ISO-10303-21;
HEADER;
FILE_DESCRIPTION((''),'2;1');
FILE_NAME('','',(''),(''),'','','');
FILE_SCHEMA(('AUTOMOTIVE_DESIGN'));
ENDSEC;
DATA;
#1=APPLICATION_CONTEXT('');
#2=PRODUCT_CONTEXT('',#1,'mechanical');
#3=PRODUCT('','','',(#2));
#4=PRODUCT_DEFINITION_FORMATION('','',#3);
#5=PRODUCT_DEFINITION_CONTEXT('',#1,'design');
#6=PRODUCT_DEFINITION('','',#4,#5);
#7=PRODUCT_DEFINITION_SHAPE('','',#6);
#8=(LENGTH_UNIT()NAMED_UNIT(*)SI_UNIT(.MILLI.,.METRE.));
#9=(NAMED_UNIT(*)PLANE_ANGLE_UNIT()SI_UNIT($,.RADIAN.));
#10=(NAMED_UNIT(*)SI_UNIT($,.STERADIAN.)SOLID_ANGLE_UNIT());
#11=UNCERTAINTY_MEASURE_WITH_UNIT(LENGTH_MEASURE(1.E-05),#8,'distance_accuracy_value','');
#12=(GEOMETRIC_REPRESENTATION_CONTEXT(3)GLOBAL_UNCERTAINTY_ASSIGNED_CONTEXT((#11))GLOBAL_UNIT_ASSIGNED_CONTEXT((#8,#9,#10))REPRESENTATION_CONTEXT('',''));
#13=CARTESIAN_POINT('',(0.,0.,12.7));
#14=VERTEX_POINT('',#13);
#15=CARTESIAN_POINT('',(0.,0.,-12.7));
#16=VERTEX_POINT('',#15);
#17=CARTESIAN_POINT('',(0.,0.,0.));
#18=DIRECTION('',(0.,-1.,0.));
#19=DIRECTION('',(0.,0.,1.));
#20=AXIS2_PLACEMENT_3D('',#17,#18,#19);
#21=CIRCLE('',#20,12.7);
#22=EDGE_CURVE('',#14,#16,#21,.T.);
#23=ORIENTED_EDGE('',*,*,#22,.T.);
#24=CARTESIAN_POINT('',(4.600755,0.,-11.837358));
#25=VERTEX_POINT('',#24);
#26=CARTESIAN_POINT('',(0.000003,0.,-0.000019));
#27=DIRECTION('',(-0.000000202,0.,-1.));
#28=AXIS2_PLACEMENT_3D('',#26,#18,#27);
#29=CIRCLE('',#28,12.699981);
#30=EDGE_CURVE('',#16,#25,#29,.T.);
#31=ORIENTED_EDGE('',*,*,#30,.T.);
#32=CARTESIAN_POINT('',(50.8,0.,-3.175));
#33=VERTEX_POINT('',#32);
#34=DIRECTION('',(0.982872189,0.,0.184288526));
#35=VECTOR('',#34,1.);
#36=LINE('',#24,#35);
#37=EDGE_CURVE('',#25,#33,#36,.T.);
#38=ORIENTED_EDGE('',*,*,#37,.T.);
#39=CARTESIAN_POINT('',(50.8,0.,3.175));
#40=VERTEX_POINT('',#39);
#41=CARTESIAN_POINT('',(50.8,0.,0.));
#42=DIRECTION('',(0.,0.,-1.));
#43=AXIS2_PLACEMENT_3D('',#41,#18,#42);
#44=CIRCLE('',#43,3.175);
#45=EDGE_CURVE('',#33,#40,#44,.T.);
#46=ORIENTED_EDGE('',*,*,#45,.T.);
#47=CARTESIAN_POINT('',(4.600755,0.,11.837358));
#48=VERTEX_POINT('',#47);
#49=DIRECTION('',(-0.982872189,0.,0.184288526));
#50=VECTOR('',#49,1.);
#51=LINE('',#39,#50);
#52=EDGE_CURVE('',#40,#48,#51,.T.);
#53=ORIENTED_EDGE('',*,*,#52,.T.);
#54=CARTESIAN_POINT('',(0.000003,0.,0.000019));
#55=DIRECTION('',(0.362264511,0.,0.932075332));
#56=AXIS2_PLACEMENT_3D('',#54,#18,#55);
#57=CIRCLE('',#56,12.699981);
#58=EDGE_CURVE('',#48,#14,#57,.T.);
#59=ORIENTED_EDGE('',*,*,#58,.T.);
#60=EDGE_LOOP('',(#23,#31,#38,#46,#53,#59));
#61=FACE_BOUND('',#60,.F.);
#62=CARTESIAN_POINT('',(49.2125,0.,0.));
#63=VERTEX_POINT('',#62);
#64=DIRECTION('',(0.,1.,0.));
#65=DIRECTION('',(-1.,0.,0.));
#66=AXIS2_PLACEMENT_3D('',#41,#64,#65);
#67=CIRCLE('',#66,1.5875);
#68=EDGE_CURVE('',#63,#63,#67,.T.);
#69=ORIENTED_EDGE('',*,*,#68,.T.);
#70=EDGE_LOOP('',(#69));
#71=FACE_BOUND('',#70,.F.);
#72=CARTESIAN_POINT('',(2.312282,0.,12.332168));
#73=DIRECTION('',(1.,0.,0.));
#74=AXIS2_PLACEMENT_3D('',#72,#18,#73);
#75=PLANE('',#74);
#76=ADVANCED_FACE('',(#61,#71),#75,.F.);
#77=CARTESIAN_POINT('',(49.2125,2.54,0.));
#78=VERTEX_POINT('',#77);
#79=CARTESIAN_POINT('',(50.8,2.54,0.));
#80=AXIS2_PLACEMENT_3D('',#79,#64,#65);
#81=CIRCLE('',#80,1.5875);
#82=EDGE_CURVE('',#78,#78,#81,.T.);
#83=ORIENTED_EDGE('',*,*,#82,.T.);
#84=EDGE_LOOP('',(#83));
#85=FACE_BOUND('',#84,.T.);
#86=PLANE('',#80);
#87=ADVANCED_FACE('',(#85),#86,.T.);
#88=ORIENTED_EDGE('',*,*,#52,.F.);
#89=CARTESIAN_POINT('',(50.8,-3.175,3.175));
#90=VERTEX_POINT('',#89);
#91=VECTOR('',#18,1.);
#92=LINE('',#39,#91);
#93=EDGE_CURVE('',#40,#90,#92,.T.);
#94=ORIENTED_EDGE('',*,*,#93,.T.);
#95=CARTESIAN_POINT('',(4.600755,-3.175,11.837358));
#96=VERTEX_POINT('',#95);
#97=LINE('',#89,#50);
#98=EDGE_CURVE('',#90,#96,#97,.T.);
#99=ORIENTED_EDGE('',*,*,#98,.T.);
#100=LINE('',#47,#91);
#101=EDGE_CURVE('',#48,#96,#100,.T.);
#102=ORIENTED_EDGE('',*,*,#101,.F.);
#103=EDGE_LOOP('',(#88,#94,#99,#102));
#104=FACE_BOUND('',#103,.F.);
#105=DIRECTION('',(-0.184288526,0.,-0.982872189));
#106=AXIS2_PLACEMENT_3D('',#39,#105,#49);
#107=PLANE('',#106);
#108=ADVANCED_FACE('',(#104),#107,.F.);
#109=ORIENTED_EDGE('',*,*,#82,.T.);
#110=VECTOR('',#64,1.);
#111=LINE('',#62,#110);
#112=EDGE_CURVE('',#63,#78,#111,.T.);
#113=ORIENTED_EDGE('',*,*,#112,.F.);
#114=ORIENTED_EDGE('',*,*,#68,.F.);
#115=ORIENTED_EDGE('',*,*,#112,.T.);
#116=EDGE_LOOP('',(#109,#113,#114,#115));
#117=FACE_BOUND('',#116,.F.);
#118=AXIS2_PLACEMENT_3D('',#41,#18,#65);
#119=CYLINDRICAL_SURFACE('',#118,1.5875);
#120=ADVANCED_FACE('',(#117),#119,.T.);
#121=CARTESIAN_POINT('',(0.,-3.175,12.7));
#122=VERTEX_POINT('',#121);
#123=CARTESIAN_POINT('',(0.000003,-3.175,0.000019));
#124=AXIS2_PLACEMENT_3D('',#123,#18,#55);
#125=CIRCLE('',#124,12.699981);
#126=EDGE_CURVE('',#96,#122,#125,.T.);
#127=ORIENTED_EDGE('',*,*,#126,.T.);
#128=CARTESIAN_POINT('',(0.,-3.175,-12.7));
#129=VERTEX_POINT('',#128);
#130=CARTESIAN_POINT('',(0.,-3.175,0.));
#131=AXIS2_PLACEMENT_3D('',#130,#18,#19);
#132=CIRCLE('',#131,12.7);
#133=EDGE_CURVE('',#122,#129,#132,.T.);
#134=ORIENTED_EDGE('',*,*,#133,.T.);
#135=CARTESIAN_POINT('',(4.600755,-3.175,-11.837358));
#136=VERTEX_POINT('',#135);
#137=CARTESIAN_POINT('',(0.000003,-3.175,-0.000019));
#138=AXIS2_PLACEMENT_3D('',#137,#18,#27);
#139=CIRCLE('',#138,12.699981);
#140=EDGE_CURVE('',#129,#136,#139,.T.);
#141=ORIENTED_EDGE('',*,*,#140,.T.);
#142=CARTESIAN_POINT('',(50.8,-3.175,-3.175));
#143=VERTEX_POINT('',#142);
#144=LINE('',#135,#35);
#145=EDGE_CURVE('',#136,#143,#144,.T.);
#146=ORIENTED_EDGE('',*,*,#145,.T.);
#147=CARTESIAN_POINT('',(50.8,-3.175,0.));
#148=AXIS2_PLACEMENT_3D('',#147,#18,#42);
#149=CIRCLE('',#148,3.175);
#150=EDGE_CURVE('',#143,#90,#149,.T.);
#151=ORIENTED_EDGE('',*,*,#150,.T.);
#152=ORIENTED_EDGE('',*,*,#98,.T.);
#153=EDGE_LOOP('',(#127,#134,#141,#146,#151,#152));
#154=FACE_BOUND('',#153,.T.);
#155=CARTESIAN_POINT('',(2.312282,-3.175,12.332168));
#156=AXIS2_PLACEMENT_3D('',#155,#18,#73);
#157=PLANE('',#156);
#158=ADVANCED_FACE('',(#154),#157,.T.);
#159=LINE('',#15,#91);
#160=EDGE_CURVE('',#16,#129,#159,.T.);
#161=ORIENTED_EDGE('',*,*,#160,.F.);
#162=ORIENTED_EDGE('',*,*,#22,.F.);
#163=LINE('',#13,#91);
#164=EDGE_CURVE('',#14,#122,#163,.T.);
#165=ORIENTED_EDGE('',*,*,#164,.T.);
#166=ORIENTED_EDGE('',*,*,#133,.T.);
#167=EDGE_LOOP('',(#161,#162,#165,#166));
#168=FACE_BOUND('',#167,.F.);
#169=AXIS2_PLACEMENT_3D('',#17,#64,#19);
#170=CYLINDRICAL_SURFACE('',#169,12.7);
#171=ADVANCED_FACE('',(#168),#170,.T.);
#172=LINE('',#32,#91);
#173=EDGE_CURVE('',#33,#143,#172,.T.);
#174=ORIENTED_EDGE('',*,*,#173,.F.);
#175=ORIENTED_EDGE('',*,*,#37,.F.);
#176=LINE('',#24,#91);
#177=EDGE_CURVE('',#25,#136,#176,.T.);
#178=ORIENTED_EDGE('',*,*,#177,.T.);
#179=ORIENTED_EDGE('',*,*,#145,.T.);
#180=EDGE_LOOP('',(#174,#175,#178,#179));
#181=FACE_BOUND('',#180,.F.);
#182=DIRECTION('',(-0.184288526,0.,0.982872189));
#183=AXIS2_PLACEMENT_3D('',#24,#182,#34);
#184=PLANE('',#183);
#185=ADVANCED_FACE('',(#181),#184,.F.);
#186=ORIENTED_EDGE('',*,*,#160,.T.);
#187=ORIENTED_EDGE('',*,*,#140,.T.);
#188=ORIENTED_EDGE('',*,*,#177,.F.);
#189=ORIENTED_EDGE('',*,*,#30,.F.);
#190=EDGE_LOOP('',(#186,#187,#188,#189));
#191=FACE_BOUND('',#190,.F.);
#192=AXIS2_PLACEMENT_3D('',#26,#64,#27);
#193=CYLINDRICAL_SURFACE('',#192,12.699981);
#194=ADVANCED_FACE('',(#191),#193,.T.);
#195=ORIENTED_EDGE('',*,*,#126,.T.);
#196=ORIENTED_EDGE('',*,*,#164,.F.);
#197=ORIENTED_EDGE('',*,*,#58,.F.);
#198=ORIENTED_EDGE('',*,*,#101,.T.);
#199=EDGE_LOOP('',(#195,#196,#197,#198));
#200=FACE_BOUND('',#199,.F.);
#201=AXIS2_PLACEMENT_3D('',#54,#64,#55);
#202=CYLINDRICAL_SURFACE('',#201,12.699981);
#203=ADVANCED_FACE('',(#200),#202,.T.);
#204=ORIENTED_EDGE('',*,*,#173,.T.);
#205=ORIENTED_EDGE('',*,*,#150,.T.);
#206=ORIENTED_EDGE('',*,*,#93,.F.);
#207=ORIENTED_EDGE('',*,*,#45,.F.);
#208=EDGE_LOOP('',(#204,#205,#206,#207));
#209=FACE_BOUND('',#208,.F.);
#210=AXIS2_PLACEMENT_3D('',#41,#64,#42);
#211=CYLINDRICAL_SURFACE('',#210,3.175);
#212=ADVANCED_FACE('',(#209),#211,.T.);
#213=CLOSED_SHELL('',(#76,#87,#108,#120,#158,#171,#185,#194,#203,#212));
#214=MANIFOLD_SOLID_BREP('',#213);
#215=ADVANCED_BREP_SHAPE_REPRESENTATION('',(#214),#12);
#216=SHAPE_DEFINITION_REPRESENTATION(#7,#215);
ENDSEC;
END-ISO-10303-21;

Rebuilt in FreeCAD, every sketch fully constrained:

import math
import FreeCAD as App
import Part
import Sketcher

V = App.Vector
Q = App.Units.Quantity

doc = App.newDocument("Part")
body = doc.addObject("PartDesign::Body", "Body")

# Sketch on XZ plane
sketch1 = body.newObject("Sketcher::SketchObject", "Sketch")
sketch1.AttachmentSupport = (doc.getObject("XZ_Plane"), [""])
sketch1.MapMode = "FlatFace"
sketch1.addGeometry([
    Part.ArcOfCircle(Part.Circle(V(0, 0, 0), V(0, 0, 1), 12.7), math.radians(69), math.radians(90)),  # 0
    Part.ArcOfCircle(Part.Circle(V(0, 0, 0), V(0, 0, 1), 12.7), math.radians(90), math.radians(270)),  # 1
    Part.ArcOfCircle(Part.Circle(V(0, 0, 0), V(0, 0, 1), 12.7), math.radians(-90), math.radians(-69)),  # 2
    Part.LineSegment(V(4.6, -11.8, 0), V(50.8, -3.2, 0)),  # 3
    Part.ArcOfCircle(Part.Circle(V(50.8, 0, 0), V(0, 0, 1), 3.2), math.radians(-90), math.radians(90)),  # 4
    Part.LineSegment(V(50.8, 3.2, 0), V(4.6, 11.8, 0)),  # 5
], False)
sketch1.addConstraint([
    Sketcher.Constraint("Tangent", 0, 2, 1, 1),
    Sketcher.Constraint("Tangent", 1, 2, 2, 1),
    Sketcher.Constraint("Coincident", 2, 2, 3, 1),
    Sketcher.Constraint("Coincident", 3, 2, 4, 1),
    Sketcher.Constraint("Coincident", 4, 2, 5, 1),
    Sketcher.Constraint("Coincident", 5, 2, 0, 1),
    Sketcher.Constraint("Coincident", 1, 3, -1, 1),
    Sketcher.Constraint("Equal", 0, 2),
    Sketcher.Constraint("Symmetric", 3, 2, 4, 2, -1),
    Sketcher.Constraint("PointOnObject", 0, 2, -2),
    Sketcher.Constraint("PointOnObject", 1, 2, -2),
    Sketcher.Constraint("Vertical", 4, 3, 3, 2),
    Sketcher.Constraint("Vertical", 2, 2, 5, 2),
    Sketcher.Constraint("Radius", 1, Q("0.5 in")),
    Sketcher.Constraint("DistanceX", -1, 1, 4, 3, Q("2 in")),
    Sketcher.Constraint("Radius", 4, Q("0.125 in")),
    Sketcher.Constraint("Radius", 0, 12.699981),
    Sketcher.Constraint("DistanceY", 2, 2, 2, 3, 11.837339),
])
pad1 = body.newObject("PartDesign::Pad", "Pad")
pad1.Profile = sketch1
pad1.Length = Q("0.125 in")

# Sketch on XZ plane
sketch2 = body.newObject("Sketcher::SketchObject", "Sketch001")
sketch2.AttachmentSupport = (doc.getObject("XZ_Plane"), [""])
sketch2.MapMode = "FlatFace"
sketch2.addGeometry(Part.Circle(V(50.8, 0, 0), V(0, 0, 1), 1.6), False)
sketch2.addConstraint([
    Sketcher.Constraint("PointOnObject", 0, 3, -1),
    Sketcher.Constraint("Diameter", 0, Q("0.125 in")),
    Sketcher.Constraint("DistanceX", -1, 1, 0, 3, Q("2 in")),
])
pad2 = body.newObject("PartDesign::Pad", "Pad001")
pad2.Profile = sketch2
pad2.Length = Q("0.1 in")
pad2.Reversed = True

doc.recompute()
